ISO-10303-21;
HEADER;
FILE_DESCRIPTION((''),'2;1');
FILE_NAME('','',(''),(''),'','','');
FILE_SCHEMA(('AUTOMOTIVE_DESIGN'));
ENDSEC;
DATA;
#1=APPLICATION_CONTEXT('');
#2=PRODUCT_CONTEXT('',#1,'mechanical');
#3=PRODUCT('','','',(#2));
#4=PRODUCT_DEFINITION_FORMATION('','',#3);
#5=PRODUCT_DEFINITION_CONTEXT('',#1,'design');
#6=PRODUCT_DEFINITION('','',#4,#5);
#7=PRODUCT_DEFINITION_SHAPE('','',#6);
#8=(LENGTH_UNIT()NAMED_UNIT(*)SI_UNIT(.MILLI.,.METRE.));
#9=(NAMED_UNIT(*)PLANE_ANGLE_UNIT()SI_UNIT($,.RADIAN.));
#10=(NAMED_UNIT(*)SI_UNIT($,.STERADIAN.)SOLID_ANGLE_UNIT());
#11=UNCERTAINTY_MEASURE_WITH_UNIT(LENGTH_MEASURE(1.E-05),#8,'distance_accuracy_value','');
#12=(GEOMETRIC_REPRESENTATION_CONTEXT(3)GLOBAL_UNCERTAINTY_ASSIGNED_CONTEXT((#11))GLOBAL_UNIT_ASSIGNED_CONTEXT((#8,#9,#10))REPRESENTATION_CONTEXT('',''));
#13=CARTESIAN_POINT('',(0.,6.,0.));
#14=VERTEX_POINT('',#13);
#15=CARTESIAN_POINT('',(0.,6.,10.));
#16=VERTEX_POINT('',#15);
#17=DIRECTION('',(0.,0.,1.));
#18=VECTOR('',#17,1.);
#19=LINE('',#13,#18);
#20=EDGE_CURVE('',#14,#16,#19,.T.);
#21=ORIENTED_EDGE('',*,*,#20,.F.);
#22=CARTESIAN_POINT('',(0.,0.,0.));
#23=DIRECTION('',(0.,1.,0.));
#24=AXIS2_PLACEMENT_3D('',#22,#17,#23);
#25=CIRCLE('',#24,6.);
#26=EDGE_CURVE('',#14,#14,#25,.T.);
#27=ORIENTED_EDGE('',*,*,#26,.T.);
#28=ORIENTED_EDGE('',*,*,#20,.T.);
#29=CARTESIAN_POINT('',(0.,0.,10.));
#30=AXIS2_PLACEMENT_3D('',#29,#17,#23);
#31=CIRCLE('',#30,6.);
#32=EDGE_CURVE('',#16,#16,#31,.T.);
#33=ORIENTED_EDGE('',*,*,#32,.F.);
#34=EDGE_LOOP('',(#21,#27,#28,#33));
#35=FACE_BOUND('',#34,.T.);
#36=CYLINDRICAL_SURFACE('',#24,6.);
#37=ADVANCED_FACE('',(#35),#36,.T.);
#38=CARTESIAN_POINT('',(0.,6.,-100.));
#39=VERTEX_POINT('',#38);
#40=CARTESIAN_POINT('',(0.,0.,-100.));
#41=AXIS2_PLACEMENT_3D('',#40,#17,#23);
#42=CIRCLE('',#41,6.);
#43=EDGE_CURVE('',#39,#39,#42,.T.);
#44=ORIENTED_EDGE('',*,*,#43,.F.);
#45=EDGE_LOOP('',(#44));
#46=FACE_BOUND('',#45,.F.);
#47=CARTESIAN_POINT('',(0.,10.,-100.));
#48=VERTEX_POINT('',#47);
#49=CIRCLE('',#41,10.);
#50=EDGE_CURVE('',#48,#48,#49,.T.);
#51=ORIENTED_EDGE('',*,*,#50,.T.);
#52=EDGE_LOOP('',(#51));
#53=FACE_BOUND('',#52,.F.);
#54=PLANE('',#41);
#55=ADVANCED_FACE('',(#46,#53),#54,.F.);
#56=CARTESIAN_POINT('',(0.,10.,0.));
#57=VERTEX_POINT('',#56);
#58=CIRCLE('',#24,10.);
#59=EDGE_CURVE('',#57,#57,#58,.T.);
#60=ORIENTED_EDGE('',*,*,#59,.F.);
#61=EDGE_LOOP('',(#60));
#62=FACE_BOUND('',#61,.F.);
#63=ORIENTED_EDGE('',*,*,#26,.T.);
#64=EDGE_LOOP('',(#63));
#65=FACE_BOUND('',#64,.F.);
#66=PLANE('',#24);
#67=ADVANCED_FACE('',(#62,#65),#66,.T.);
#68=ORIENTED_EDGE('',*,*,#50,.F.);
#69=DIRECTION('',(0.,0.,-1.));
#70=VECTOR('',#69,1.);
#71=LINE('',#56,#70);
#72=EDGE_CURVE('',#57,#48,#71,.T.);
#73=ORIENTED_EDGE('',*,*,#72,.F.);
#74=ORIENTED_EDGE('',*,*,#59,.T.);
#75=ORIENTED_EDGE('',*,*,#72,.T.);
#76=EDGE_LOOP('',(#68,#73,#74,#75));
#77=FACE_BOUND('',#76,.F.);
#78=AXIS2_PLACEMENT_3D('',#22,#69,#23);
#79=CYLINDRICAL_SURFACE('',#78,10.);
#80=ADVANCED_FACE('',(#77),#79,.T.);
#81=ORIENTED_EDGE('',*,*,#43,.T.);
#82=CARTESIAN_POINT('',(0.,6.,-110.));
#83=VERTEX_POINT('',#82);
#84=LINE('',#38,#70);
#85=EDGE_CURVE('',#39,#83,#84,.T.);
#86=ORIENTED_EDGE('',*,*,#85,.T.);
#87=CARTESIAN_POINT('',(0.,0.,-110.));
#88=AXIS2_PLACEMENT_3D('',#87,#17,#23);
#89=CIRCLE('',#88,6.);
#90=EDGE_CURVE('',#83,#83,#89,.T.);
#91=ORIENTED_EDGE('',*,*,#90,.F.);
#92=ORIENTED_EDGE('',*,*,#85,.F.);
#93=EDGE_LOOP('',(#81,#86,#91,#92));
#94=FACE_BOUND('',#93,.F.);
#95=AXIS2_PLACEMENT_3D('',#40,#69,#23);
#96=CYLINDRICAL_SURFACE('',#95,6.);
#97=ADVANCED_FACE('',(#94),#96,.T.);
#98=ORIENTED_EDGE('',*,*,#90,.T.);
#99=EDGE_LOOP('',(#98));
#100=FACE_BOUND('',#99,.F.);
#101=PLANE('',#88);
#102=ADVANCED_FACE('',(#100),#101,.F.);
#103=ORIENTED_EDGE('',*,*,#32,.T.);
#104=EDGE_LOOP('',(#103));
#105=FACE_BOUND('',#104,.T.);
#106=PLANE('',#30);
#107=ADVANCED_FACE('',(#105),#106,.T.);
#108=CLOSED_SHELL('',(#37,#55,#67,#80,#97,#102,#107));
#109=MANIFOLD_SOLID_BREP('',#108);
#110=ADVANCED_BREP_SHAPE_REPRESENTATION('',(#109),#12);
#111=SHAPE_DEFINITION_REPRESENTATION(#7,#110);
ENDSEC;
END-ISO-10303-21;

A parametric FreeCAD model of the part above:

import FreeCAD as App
import Part
import Sketcher

V = App.Vector
Q = App.Units.Quantity


def add_polygon(sketch, points):
    """Adds a closed chain of lines whose ends are joined by coincident constraints."""
    first, n = sketch.GeometryCount, len(points)
    for a, b in zip(points, points[1:] + points[:1]):
        sketch.addGeometry(Part.LineSegment(App.Vector(*a, 0), App.Vector(*b, 0)), False)
    for i in range(n):
        sketch.addConstraint(Sketcher.Constraint("Coincident", first + i, 2, first + (i + 1) % n, 1))

doc = App.newDocument("Part")
params = doc.addObject("Spreadsheet::Sheet", "Params")
for row, (alias, value) in enumerate([
    ("sketch1_width", "6 mm"),
    ("sketch1_height", "10 mm"),
    ("sketch1_height2", "100 mm"),
    ("revolution_angle", "360 deg"),
], start=1):
    params.set(f"A{row}", alias)
    params.set(f"B{row}", "=" + value)
    params.setAlias(f"B{row}", alias)

body = doc.addObject("PartDesign::Body", "Body")

# Sketch on YZ plane
sketch1 = body.newObject("Sketcher::SketchObject", "Sketch")
sketch1.AttachmentSupport = (doc.getObject("YZ_Plane"), [""])
sketch1.MapMode = "FlatFace"
add_polygon(sketch1, [(0, 10), (0, -110), (6, -110), (6, -100), (10, -100), (10, 0), (6, 0), (6, 10)])  # lines 0-7
sketch1.addConstraint([
    Sketcher.Constraint("Vertical", 0),
    Sketcher.Constraint("Horizontal", 1),
    Sketcher.Constraint("Vertical", 2),
    Sketcher.Constraint("Horizontal", 3),
    Sketcher.Constraint("Vertical", 4),
    Sketcher.Constraint("Horizontal", 5),
    Sketcher.Constraint("Vertical", 6),
    Sketcher.Constraint("Horizontal", 7),
    Sketcher.Constraint("PointOnObject", 0, 2, -2),
    Sketcher.Constraint("PointOnObject", 4, 2, -1),
    Sketcher.Constraint("Vertical", 2, 2, 5, 2),
    Sketcher.Constraint("Equal", 2, 6),
    Sketcher.Constraint("DistanceX", 1, 1, 1, 2, Q("6 mm")),
    Sketcher.Constraint("DistanceY", 2, 1, 2, 2, Q("10 mm")),
    Sketcher.Constraint("DistanceY", 4, 1, 4, 2, Q("100 mm")),
    Sketcher.Constraint("DistanceX", -1, 1, 3, 2, Q("10 mm")),
])
sketch1.setExpression("Constraints[20]", "Params.sketch1_width")
sketch1.setExpression("Constraints[21]", "Params.sketch1_height")
sketch1.setExpression("Constraints[22]", "Params.sketch1_height2")
revolution = body.newObject("PartDesign::Revolution", "Revolution")
revolution.Profile = sketch1
revolution.ReferenceAxis = (sketch1, ["V_Axis"])
revolution.setExpression("Angle", "Params.revolution_angle")

doc.recompute()
